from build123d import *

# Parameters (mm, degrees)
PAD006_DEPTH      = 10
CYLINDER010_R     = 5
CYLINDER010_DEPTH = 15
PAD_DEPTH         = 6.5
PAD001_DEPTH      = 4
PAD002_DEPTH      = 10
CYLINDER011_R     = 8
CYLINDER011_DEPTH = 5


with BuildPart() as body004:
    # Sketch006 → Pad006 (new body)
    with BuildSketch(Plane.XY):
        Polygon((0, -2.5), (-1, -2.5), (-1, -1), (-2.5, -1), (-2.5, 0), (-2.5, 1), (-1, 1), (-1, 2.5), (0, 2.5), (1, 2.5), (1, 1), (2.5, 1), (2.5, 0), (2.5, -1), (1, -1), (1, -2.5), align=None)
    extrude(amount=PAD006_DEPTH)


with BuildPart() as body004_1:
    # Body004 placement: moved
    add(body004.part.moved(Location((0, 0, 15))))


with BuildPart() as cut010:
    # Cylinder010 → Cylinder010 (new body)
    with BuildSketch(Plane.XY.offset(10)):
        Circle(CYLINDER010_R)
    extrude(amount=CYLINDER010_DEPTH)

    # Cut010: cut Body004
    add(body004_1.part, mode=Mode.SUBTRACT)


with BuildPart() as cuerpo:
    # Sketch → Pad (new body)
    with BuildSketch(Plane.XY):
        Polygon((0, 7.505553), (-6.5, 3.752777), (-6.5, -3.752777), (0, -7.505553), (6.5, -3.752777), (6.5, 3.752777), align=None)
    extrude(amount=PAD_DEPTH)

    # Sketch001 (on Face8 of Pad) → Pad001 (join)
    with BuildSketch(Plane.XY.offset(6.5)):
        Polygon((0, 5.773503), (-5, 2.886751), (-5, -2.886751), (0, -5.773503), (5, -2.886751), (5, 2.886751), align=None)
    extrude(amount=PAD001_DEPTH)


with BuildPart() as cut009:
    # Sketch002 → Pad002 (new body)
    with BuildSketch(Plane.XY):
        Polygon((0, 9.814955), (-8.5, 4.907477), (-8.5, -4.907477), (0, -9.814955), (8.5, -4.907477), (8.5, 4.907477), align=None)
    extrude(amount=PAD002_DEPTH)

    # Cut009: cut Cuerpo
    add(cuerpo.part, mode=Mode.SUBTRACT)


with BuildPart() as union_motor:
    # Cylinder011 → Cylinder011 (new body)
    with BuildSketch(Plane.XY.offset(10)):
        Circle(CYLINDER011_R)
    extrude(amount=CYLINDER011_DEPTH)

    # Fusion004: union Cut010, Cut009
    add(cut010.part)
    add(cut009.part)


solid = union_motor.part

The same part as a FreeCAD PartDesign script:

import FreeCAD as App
import Part
import Sketcher

V = App.Vector
Q = App.Units.Quantity

doc = App.newDocument("Part")
body = doc.addObject("PartDesign::Body", "Body")

sketch1 = body.newObject("Sketcher::SketchObject", "Sketch")
sketch1.AttachmentSupport = (doc.getObject("XY_Plane"), [""])
sketch1.MapMode = "FlatFace"
sketch1.addGeometry([
    Part.LineSegment(V(-1, -2.5, 0), V(1, -2.5, 0)),
    Part.LineSegment(V(1, -2.5, 0), V(1, -1, 0)),
    Part.LineSegment(V(1, -1, 0), V(2.5, -1, 0)),
    Part.LineSegment(V(2.5, -1, 0), V(2.5, 1, 0)),
    Part.LineSegment(V(2.5, 1, 0), V(1, 1, 0)),
    Part.LineSegment(V(1, 1, 0), V(1, 2.5, 0)),
    Part.LineSegment(V(1, 2.5, 0), V(-1, 2.5, 0)),
    Part.LineSegment(V(-1, 2.5, 0), V(-1, 1, 0)),
    Part.LineSegment(V(-1, 1, 0), V(-2.5, 1, 0)),
    Part.LineSegment(V(-2.5, 1, 0), V(-2.5, -1, 0)),
    Part.LineSegment(V(-2.5, -1, 0), V(-1, -1, 0)),
    Part.LineSegment(V(-1, -1, 0), V(-1, -2.5, 0)),
], False)
sketch1.addConstraint([
    Sketcher.Constraint("Coincident", 0, 2, 1, 1),
    Sketcher.Constraint("Coincident", 1, 2, 2, 1),
    Sketcher.Constraint("Coincident", 2, 2, 3, 1),
    Sketcher.Constraint("Coincident", 3, 2, 4, 1),
    Sketcher.Constraint("Coincident", 4, 2, 5, 1),
    Sketcher.Constraint("Coincident", 5, 2, 6, 1),
    Sketcher.Constraint("Coincident", 6, 2, 7, 1),
    Sketcher.Constraint("Coincident", 7, 2, 8, 1),
    Sketcher.Constraint("Coincident", 8, 2, 9, 1),
    Sketcher.Constraint("Coincident", 9, 2, 10, 1),
    Sketcher.Constraint("Coincident", 10, 2, 11, 1),
    Sketcher.Constraint("Coincident", 11, 2, 0, 1),
    Sketcher.Constraint("Horizontal", 0),
    Sketcher.Constraint("Vertical", 1),
    Sketcher.Constraint("Horizontal", 2),
    Sketcher.Constraint("Vertical", 3),
    Sketcher.Constraint("Horizontal", 4),
    Sketcher.Constraint("Vertical", 5),
    Sketcher.Constraint("Horizontal", 6),
    Sketcher.Constraint("Vertical", 7),
    Sketcher.Constraint("Horizontal", 8),
    Sketcher.Constraint("Vertical", 9),
    Sketcher.Constraint("Horizontal", 10),
    Sketcher.Constraint("Vertical", 11),
    Sketcher.Constraint("Symmetric", 0, 2, 6, 2, -1, 1),
    Sketcher.Constraint("Symmetric", 2, 2, 8, 2, -1, 1),
    Sketcher.Constraint("Symmetric", 4, 2, 10, 2, -1, 1),
    Sketcher.Constraint("Symmetric", 4, 2, 7, 2, -2),
    Sketcher.Constraint("Equal", 10, 1),
    Sketcher.Constraint("Equal", 6, 3),
    Sketcher.Constraint("DistanceX", 0, 1, 0, 2, Q("2 mm")),
    Sketcher.Constraint("DistanceX", 2, 1, 2, 2, Q("1.5 mm")),
])
pad1 = body.newObject("PartDesign::Pad", "Pad")
pad1.Profile = sketch1
pad1.Length = 10
body2 = doc.addObject("PartDesign::Body", "Body001")
doc.recompute()

body.Placement = App.Placement(V(0, 0, 15), App.Rotation(V(0, 0, 1), 0))
boolean = body2.newObject("PartDesign::Boolean", "Boolean")
boolean.Type = "Fuse"
boolean.addObjects([body])
body3 = doc.addObject("PartDesign::Body", "Body002")

sketch2 = body3.newObject("Sketcher::SketchObject", "Sketch001")
sketch2.AttachmentSupport = (doc.getObject("XY_Plane002"), [""])
sketch2.MapMode = "FlatFace"
sketch2.AttachmentOffset = App.Placement(V(0, 0, 10), App.Rotation())
sketch2.addGeometry(Part.Circle(V(0, 0, 0), V(0, 0, 1), 5), False)
sketch2.addConstraint([
    Sketcher.Constraint("Coincident", 0, 3, -1, 1),
    Sketcher.Constraint("Diameter", 0, Q("10 mm")),
])
pad2 = body3.newObject("PartDesign::Pad", "Pad001")
pad2.Profile = sketch2
pad2.Length = 15
doc.recompute()

boolean2 = body3.newObject("PartDesign::Boolean", "Boolean001")
boolean2.Type = "Cut"
boolean2.addObjects([body2])
body4 = doc.addObject("PartDesign::Body", "Body003")

sketch3 = body4.newObject("Sketcher::SketchObject", "Sketch002")
sketch3.AttachmentSupport = (doc.getObject("XY_Plane003"), [""])
sketch3.MapMode = "FlatFace"
sketch3.addGeometry([
    Part.LineSegment(V(0, 8, 0), V(-6, 4, 0)),
    Part.LineSegment(V(-6, 4, 0), V(-6, -4, 0)),
    Part.LineSegment(V(-6, -4, 0), V(0, -8, 0)),
    Part.LineSegment(V(0, -8, 0), V(6, -4, 0)),
    Part.LineSegment(V(6, -4, 0), V(6, 4, 0)),
    Part.LineSegment(V(6, 4, 0), V(0, 8, 0)),
], False)
sketch3.addConstraint([
    Sketcher.Constraint("Coincident", 0, 2, 1, 1),
    Sketcher.Constraint("Coincident", 1, 2, 2, 1),
    Sketcher.Constraint("Coincident", 2, 2, 3, 1),
    Sketcher.Constraint("Coincident", 3, 2, 4, 1),
    Sketcher.Constraint("Coincident", 4, 2, 5, 1),
    Sketcher.Constraint("Coincident", 5, 2, 0, 1),
    Sketcher.Constraint("Vertical", 1),
    Sketcher.Constraint("Vertical", 4),
    Sketcher.Constraint("Symmetric", 0, 2, 3, 2, -1, 1),
    Sketcher.Constraint("Symmetric", 2, 2, 5, 2, -1, 1),
    Sketcher.Constraint("PointOnObject", 2, 2, -2),
    Sketcher.Constraint("Parallel", 2, 5),
    Sketcher.Constraint("Horizontal", 1, 2, 3, 2),
    Sketcher.Constraint("Angle", 0, Q("-150.000005 deg")),
    Sketcher.Constraint("DistanceX", 1, 2, 3, 2, Q("13 mm")),
    Sketcher.Constraint("DistanceY", 1, 2, 1, 1, Q("7.505554 mm")),
])
pad3 = body4.newObject("PartDesign::Pad", "Pad002")
pad3.Profile = sketch3
pad3.Length = 6.5

sketch4 = body4.newObject("Sketcher::SketchObject", "Sketch003")
sketch4.AttachmentSupport = (doc.getObject("XY_Plane003"), [""])
sketch4.MapMode = "FlatFace"
sketch4.AttachmentOffset = App.Placement(V(0, 0, 6.5), App.Rotation())
sketch4.addGeometry([
    Part.LineSegment(V(0, 6, 0), V(-5, 3, 0)),
    Part.LineSegment(V(-5, 3, 0), V(-5, -3, 0)),
    Part.LineSegment(V(-5, -3, 0), V(0, -6, 0)),
    Part.LineSegment(V(0, -6, 0), V(5, -3, 0)),
    Part.LineSegment(V(5, -3, 0), V(5, 3, 0)),
    Part.LineSegment(V(5, 3, 0), V(0, 6, 0)),
], False)
sketch4.addConstraint([
    Sketcher.Constraint("Coincident", 0, 2, 1, 1),
    Sketcher.Constraint("Coincident", 1, 2, 2, 1),
    Sketcher.Constraint("Coincident", 2, 2, 3, 1),
    Sketcher.Constraint("Coincident", 3, 2, 4, 1),
    Sketcher.Constraint("Coincident", 4, 2, 5, 1),
    Sketcher.Constraint("Coincident", 5, 2, 0, 1),
    Sketcher.Constraint("Vertical", 1),
    Sketcher.Constraint("Vertical", 4),
    Sketcher.Constraint("Symmetric", 0, 2, 3, 2, -1, 1),
    Sketcher.Constraint("Symmetric", 2, 2, 5, 2, -1, 1),
    Sketcher.Constraint("PointOnObject", 2, 2, -2),
    Sketcher.Constraint("Parallel", 2, 5),
    Sketcher.Constraint("Horizontal", 1, 2, 3, 2),
    Sketcher.Constraint("Angle", 0, Q("-149.999994 deg")),
    Sketcher.Constraint("DistanceX", 0, 2, -1, 1, Q("5 mm")),
    Sketcher.Constraint("DistanceY", 1, 2, 1, 1, Q("5.773502 mm")),
])
pad4 = body4.newObject("PartDesign::Pad", "Pad003")
pad4.Profile = sketch4
pad4.Length = 4
body5 = doc.addObject("PartDesign::Body", "Body004")

sketch5 = body5.newObject("Sketcher::SketchObject", "Sketch004")
sketch5.AttachmentSupport = (doc.getObject("XY_Plane004"), [""])
sketch5.MapMode = "FlatFace"
sketch5.addGeometry([
    Part.LineSegment(V(0, 10, 0), V(-8, 5, 0)),
    Part.LineSegment(V(-8, 5, 0), V(-8, -5, 0)),
    Part.LineSegment(V(-8, -5, 0), V(0, -10, 0)),
    Part.LineSegment(V(0, -10, 0), V(8, -5, 0)),
    Part.LineSegment(V(8, -5, 0), V(8, 5, 0)),
    Part.LineSegment(V(8, 5, 0), V(0, 10, 0)),
], False)
sketch5.addConstraint([
    Sketcher.Constraint("Coincident", 0, 2, 1, 1),
    Sketcher.Constraint("Coincident", 1, 2, 2, 1),
    Sketcher.Constraint("Coincident", 2, 2, 3, 1),
    Sketcher.Constraint("Coincident", 3, 2, 4, 1),
    Sketcher.Constraint("Coincident", 4, 2, 5, 1),
    Sketcher.Constraint("Coincident", 5, 2, 0, 1),
    Sketcher.Constraint("Vertical", 1),
    Sketcher.Constraint("Vertical", 4),
    Sketcher.Constraint("Symmetric", 0, 2, 3, 2, -1, 1),
    Sketcher.Constraint("Symmetric", 2, 2, 5, 2, -1, 1),
    Sketcher.Constraint("PointOnObject", 2, 2, -2),
    Sketcher.Constraint("Parallel", 2, 5),
    Sketcher.Constraint("Horizontal", 1, 2, 3, 2),
    Sketcher.Constraint("Angle", 0, Q("-149.999996 deg")),
    Sketcher.Constraint("DistanceX", 1, 2, 3, 2, Q("17 mm")),
    Sketcher.Constraint("DistanceY", 1, 2, 1, 1, Q("9.814954 mm")),
])
pad5 = body5.newObject("PartDesign::Pad", "Pad004")
pad5.Profile = sketch5
pad5.Length = 10
doc.recompute()

boolean3 = body5.newObject("PartDesign::Boolean", "Boolean002")
boolean3.Type = "Cut"
boolean3.addObjects([body4])
body6 = doc.addObject("PartDesign::Body", "Body005")

sketch6 = body6.newObject("Sketcher::SketchObject", "Sketch005")
sketch6.AttachmentSupport = (doc.getObject("XY_Plane005"), [""])
sketch6.MapMode = "FlatFace"
sketch6.AttachmentOffset = App.Placement(V(0, 0, 10), App.Rotation())
sketch6.addGeometry(Part.Circle(V(0, 0, 0), V(0, 0, 1), 8), False)
sketch6.addConstraint([
    Sketcher.Constraint("Coincident", 0, 3, -1, 1),
    Sketcher.Constraint("Diameter", 0, Q("16 mm")),
])
pad6 = body6.newObject("PartDesign::Pad", "Pad005")
pad6.Profile = sketch6
pad6.Length = 5
doc.recompute()

boolean4 = body6.newObject("PartDesign::Boolean", "Boolean003")
boolean4.Type = "Fuse"
boolean4.addObjects([body3])
doc.recompute()

boolean5 = body6.newObject("PartDesign::Boolean", "Boolean004")
boolean5.Type = "Fuse"
boolean5.addObjects([body5])

doc.recompute()
